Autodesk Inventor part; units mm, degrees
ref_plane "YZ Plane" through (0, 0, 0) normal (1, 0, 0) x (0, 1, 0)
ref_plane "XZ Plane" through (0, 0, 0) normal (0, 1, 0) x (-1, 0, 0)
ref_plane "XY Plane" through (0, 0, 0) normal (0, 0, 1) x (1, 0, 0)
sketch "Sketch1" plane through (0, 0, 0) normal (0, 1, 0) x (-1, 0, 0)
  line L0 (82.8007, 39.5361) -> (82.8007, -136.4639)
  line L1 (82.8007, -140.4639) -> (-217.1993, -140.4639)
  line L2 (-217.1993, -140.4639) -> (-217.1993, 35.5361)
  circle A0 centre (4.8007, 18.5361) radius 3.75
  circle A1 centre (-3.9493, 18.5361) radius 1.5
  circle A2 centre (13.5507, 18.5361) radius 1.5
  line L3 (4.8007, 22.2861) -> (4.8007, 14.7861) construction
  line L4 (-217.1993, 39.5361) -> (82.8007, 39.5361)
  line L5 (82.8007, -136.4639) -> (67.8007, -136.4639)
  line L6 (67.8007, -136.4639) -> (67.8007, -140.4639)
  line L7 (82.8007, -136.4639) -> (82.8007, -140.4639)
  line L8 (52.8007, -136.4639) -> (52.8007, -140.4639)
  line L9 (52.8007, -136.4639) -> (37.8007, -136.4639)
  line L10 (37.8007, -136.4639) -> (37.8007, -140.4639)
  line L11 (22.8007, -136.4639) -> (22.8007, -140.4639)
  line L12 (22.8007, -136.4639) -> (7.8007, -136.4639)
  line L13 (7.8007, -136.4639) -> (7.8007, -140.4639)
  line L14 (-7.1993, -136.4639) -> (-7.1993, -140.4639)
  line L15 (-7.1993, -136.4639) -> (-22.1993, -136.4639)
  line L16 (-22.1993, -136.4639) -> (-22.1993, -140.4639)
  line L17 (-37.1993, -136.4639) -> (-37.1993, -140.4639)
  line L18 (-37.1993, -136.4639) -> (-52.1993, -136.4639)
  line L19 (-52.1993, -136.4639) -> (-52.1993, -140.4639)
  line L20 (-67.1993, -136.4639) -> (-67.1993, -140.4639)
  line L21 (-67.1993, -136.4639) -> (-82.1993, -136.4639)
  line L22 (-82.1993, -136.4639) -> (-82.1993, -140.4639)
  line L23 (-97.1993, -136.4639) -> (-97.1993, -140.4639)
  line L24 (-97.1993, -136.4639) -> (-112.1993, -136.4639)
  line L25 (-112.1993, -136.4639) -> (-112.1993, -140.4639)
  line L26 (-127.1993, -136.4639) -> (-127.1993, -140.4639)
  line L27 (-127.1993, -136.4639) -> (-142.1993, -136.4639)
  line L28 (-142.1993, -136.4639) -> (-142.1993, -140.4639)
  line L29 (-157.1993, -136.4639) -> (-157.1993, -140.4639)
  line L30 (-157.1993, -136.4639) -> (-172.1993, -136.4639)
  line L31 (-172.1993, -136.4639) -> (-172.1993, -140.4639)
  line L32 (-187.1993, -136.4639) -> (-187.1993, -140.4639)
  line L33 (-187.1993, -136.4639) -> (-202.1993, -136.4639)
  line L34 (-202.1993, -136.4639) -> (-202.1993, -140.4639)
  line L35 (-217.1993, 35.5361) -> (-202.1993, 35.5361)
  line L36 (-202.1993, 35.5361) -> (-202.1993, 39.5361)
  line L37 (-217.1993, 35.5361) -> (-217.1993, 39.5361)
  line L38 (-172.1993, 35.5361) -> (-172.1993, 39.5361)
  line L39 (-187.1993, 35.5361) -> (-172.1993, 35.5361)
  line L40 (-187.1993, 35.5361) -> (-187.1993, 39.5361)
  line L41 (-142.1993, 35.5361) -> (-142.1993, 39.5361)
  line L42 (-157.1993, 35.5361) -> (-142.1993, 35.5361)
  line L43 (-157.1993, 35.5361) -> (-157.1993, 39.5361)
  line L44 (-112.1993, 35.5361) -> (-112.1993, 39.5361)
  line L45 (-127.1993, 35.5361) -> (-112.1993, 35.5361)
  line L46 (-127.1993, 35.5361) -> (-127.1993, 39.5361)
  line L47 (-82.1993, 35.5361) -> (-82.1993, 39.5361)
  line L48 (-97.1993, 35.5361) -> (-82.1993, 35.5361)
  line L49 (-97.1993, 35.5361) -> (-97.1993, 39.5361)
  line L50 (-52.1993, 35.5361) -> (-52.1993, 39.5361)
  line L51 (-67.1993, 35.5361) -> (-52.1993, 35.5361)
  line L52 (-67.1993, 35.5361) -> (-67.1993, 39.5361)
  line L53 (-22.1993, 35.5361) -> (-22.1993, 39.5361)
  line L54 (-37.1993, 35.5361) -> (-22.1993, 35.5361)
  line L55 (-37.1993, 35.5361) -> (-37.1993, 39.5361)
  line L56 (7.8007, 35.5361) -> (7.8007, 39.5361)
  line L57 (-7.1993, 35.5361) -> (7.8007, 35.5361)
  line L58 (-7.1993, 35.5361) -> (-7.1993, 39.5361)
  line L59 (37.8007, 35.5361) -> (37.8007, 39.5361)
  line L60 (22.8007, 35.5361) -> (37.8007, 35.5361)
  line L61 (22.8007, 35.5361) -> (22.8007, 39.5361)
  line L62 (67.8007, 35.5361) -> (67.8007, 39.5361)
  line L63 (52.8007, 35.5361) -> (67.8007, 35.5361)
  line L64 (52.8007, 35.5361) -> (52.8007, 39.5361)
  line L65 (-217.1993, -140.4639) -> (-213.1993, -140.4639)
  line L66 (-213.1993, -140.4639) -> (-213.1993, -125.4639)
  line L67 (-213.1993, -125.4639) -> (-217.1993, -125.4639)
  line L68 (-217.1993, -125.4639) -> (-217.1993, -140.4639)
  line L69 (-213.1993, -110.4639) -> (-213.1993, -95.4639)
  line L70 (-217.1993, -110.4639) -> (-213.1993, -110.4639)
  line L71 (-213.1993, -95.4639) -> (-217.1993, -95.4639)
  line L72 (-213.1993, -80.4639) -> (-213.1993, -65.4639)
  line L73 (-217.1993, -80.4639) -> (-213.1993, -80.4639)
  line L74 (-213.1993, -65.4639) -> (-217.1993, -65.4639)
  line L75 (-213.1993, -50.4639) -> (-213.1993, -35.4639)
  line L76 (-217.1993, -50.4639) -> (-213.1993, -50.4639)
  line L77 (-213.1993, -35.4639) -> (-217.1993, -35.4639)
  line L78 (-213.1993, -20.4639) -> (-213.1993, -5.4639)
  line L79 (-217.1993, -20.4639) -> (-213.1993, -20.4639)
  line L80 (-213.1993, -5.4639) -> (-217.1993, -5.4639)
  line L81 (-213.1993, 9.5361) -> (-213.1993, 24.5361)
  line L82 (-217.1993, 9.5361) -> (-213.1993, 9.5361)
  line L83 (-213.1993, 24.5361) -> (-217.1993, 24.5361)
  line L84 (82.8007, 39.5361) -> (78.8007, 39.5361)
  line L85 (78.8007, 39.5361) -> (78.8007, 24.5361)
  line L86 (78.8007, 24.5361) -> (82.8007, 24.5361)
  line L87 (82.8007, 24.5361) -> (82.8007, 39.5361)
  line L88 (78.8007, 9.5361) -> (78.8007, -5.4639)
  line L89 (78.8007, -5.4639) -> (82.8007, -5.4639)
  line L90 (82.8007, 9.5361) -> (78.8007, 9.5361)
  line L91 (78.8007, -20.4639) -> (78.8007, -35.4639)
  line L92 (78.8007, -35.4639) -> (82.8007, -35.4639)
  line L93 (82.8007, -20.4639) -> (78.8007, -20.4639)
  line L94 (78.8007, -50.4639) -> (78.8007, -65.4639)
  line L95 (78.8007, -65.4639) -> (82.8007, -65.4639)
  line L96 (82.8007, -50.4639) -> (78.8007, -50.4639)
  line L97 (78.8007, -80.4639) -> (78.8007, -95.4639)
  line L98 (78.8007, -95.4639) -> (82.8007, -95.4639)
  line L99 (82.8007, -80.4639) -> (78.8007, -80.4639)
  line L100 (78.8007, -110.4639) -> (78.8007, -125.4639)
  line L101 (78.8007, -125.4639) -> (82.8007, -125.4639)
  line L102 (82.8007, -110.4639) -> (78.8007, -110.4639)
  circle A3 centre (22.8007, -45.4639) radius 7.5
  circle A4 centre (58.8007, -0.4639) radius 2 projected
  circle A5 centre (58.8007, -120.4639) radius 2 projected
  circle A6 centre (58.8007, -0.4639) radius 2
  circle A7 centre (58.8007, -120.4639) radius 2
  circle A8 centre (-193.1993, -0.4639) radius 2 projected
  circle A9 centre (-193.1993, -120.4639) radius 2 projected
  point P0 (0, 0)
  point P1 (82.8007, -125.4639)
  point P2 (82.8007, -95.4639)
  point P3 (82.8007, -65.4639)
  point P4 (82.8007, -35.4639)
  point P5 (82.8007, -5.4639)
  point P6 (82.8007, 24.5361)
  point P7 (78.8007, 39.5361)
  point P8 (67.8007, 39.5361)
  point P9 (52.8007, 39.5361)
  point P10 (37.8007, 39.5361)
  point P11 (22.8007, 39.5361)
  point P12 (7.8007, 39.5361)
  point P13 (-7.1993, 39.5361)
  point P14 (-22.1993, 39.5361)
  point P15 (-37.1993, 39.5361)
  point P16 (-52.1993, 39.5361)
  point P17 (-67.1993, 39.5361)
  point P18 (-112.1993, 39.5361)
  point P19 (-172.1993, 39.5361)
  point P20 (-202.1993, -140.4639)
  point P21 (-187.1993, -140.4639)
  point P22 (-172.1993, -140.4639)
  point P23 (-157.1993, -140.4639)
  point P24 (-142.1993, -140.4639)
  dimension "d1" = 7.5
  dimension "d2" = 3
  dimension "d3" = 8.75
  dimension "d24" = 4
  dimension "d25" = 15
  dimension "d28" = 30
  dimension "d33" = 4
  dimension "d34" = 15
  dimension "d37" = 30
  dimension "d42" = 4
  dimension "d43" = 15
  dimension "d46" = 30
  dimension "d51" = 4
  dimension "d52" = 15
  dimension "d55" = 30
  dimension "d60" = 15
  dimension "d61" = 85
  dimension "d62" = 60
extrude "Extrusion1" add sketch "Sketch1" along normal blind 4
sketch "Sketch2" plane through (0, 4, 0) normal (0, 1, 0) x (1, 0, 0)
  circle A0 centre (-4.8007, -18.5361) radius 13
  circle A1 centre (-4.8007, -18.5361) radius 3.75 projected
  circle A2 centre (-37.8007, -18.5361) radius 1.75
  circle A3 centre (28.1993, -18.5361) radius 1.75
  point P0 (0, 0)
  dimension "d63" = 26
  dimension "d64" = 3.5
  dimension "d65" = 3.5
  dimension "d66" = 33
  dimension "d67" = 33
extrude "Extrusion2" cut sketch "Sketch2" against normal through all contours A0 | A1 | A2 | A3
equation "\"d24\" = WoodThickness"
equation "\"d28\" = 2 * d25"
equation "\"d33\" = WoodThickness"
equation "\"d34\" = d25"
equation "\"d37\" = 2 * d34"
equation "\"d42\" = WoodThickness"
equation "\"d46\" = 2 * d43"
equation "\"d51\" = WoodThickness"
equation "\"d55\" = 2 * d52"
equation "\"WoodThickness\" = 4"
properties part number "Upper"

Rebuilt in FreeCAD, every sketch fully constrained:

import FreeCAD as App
import Part
import Sketcher
from FreeCAD import Vector
Q = App.Units.Quantity


def add_polygon(sketch, points):
    """Adds a closed chain of lines whose ends are joined by coincident constraints."""
    first, n = sketch.GeometryCount, len(points)
    for a, b in zip(points, points[1:] + points[:1]):
        sketch.addGeometry(Part.LineSegment(App.Vector(*a, 0), App.Vector(*b, 0)), False)
    for i in range(n):
        sketch.addConstraint(Sketcher.Constraint("Coincident", first + i, 2, first + (i + 1) % n, 1))

doc = App.newDocument("Part")
body = doc.addObject("PartDesign::Body", "Body")

# Sketch on XZ plane
sketch1 = body.newObject("Sketcher::SketchObject", "Sketch")
sketch1.AttachmentSupport = (doc.getObject("XZ_Plane"), [""])
sketch1.MapMode = "FlatFace"
add_polygon(sketch1, [(-82.8, 39.5), (217.2, 39.5), (217.2, -140.5), (-82.8, -140.5)])  # lines 0-3
sketch1.addGeometry(Part.Circle(Vector(-58.8, -0.5, 0), Vector(0, 0, 1), 2), False)  # 4
sketch1.addGeometry(Part.Circle(Vector(-13.6, 18.5, 0), Vector(0, 0, 1), 1.5), False)  # 5
sketch1.addGeometry(Part.Circle(Vector(193.2, -120.5, 0), Vector(0, 0, 1), 2), False)  # 6
sketch1.addGeometry(Part.Circle(Vector(-58.8, -120.5, 0), Vector(0, 0, 1), 2), False)  # 7
sketch1.addGeometry(Part.Circle(Vector(193.2, -0.5, 0), Vector(0, 0, 1), 2), False)  # 8
sketch1.addGeometry(Part.Circle(Vector(-22.8, -45.5, 0), Vector(0, 0, 1), 7.5), False)  # 9
sketch1.addGeometry(Part.Circle(Vector(3.9, 18.5, 0), Vector(0, 0, 1), 1.5), False)  # 10
sketch1.addGeometry(Part.Circle(Vector(-4.8, 18.5, 0), Vector(0, 0, 1), 3.8), False)  # 11
sketch1.addConstraint([
    Sketcher.Constraint("Horizontal", 0),
    Sketcher.Constraint("Vertical", 1),
    Sketcher.Constraint("Horizontal", 2),
    Sketcher.Constraint("Vertical", 3),
    Sketcher.Constraint("Equal", 4, 6),
    Sketcher.Constraint("Equal", 6, 7),
    Sketcher.Constraint("Equal", 7, 8),
    Sketcher.Constraint("Equal", 5, 10),
    Sketcher.Constraint("Horizontal", 6, 3, 7, 3),
    Sketcher.Constraint("Horizontal", 4, 3, 8, 3),
    Sketcher.Constraint("Horizontal", 5, 3, 10, 3),
    Sketcher.Constraint("Horizontal", 10, 3, 11, 3),
    Sketcher.Constraint("Vertical", 4, 3, 7, 3),
    Sketcher.Constraint("Vertical", 6, 3, 8, 3),
    Sketcher.Constraint("Diameter", 4, Q("4 mm")),
    Sketcher.Constraint("Diameter", 5, Q("3 mm")),
    Sketcher.Constraint("Diameter", 9, Q("15 mm")),
    Sketcher.Constraint("Diameter", 11, Q("7.5 mm")),
    Sketcher.Constraint("DistanceX", 2, 2, 9, 3, Q("60 mm")),
    Sketcher.Constraint("DistanceY", 9, 3, 3, 2, Q("85 mm")),
    Sketcher.Constraint("DistanceX", 0, 1, 0, 2, Q("300 mm")),
    Sketcher.Constraint("DistanceY", 1, 2, 1, 1, Q("180 mm")),
    Sketcher.Constraint("DistanceX", 5, 3, 11, 3, Q("8.75 mm")),
    Sketcher.Constraint("DistanceX", 11, 3, 10, 3, Q("8.75 mm")),
    Sketcher.Constraint("DistanceY", 4, 3, 5, 3, Q("19 mm")),
    Sketcher.Constraint("DistanceY", 6, 3, 5, 3, Q("139 mm")),
    Sketcher.Constraint("DistanceX", 4, 3, 6, 3, Q("252 mm")),
    Sketcher.Constraint("DistanceX", 4, 3, 9, 3, Q("36 mm")),
    Sketcher.Constraint("DistanceY", 9, 3, 4, 3, Q("45 mm")),
    Sketcher.Constraint("DistanceX", 4, 3, 11, 3, Q("54 mm")),
    Sketcher.Constraint("DistanceY", 4, 3, -1, 1, Q("0.464 mm")),
    Sketcher.Constraint("DistanceX", 4, 3, -1, 1, Q("58.8007 mm")),
])
pad1 = body.newObject("PartDesign::Pad", "Pad")
pad1.Profile = sketch1
pad1.Length = 4
pad1.Reversed = True

# Sketch on XZ plane
sketch2 = body.newObject("Sketcher::SketchObject", "Sketch001")
sketch2.AttachmentSupport = (doc.getObject("XZ_Plane"), [""])
sketch2.MapMode = "FlatFace"
sketch2.AttachmentOffset = App.Placement(Vector(0, 0, -4), App.Rotation())
sketch2.addGeometry([
    Part.Circle(Vector(-4.8, 18.5, 0), Vector(0, 0, 1), 13),
    Part.Circle(Vector(-37.8, 18.5, 0), Vector(0, 0, 1), 1.8),
    Part.Circle(Vector(28.2, 18.5, 0), Vector(0, 0, 1), 1.8),
], False)
sketch2.addConstraint([
    Sketcher.Constraint("Equal", 1, 2),
    Sketcher.Constraint("Horizontal", 0, 3, 1, 3),
    Sketcher.Constraint("Horizontal", 1, 3, 2, 3),
    Sketcher.Constraint("Diameter", 0, Q("26 mm")),
    Sketcher.Constraint("Diameter", 1, Q("3.5 mm")),
    Sketcher.Constraint("DistanceX", 1, 3, 0, 3, Q("33 mm")),
    Sketcher.Constraint("DistanceX", 0, 3, 2, 3, Q("33 mm")),
    Sketcher.Constraint("DistanceY", -1, 1, 0, 3, Q("18.536 mm")),
    Sketcher.Constraint("DistanceX", 0, 3, -1, 1, Q("4.8007 mm")),
])
pocket1 = body.newObject("PartDesign::Pocket", "Pocket")
pocket1.Profile = sketch2
pocket1.Type = "ThroughAll"
pocket1.Reversed = True

doc.recompute()
